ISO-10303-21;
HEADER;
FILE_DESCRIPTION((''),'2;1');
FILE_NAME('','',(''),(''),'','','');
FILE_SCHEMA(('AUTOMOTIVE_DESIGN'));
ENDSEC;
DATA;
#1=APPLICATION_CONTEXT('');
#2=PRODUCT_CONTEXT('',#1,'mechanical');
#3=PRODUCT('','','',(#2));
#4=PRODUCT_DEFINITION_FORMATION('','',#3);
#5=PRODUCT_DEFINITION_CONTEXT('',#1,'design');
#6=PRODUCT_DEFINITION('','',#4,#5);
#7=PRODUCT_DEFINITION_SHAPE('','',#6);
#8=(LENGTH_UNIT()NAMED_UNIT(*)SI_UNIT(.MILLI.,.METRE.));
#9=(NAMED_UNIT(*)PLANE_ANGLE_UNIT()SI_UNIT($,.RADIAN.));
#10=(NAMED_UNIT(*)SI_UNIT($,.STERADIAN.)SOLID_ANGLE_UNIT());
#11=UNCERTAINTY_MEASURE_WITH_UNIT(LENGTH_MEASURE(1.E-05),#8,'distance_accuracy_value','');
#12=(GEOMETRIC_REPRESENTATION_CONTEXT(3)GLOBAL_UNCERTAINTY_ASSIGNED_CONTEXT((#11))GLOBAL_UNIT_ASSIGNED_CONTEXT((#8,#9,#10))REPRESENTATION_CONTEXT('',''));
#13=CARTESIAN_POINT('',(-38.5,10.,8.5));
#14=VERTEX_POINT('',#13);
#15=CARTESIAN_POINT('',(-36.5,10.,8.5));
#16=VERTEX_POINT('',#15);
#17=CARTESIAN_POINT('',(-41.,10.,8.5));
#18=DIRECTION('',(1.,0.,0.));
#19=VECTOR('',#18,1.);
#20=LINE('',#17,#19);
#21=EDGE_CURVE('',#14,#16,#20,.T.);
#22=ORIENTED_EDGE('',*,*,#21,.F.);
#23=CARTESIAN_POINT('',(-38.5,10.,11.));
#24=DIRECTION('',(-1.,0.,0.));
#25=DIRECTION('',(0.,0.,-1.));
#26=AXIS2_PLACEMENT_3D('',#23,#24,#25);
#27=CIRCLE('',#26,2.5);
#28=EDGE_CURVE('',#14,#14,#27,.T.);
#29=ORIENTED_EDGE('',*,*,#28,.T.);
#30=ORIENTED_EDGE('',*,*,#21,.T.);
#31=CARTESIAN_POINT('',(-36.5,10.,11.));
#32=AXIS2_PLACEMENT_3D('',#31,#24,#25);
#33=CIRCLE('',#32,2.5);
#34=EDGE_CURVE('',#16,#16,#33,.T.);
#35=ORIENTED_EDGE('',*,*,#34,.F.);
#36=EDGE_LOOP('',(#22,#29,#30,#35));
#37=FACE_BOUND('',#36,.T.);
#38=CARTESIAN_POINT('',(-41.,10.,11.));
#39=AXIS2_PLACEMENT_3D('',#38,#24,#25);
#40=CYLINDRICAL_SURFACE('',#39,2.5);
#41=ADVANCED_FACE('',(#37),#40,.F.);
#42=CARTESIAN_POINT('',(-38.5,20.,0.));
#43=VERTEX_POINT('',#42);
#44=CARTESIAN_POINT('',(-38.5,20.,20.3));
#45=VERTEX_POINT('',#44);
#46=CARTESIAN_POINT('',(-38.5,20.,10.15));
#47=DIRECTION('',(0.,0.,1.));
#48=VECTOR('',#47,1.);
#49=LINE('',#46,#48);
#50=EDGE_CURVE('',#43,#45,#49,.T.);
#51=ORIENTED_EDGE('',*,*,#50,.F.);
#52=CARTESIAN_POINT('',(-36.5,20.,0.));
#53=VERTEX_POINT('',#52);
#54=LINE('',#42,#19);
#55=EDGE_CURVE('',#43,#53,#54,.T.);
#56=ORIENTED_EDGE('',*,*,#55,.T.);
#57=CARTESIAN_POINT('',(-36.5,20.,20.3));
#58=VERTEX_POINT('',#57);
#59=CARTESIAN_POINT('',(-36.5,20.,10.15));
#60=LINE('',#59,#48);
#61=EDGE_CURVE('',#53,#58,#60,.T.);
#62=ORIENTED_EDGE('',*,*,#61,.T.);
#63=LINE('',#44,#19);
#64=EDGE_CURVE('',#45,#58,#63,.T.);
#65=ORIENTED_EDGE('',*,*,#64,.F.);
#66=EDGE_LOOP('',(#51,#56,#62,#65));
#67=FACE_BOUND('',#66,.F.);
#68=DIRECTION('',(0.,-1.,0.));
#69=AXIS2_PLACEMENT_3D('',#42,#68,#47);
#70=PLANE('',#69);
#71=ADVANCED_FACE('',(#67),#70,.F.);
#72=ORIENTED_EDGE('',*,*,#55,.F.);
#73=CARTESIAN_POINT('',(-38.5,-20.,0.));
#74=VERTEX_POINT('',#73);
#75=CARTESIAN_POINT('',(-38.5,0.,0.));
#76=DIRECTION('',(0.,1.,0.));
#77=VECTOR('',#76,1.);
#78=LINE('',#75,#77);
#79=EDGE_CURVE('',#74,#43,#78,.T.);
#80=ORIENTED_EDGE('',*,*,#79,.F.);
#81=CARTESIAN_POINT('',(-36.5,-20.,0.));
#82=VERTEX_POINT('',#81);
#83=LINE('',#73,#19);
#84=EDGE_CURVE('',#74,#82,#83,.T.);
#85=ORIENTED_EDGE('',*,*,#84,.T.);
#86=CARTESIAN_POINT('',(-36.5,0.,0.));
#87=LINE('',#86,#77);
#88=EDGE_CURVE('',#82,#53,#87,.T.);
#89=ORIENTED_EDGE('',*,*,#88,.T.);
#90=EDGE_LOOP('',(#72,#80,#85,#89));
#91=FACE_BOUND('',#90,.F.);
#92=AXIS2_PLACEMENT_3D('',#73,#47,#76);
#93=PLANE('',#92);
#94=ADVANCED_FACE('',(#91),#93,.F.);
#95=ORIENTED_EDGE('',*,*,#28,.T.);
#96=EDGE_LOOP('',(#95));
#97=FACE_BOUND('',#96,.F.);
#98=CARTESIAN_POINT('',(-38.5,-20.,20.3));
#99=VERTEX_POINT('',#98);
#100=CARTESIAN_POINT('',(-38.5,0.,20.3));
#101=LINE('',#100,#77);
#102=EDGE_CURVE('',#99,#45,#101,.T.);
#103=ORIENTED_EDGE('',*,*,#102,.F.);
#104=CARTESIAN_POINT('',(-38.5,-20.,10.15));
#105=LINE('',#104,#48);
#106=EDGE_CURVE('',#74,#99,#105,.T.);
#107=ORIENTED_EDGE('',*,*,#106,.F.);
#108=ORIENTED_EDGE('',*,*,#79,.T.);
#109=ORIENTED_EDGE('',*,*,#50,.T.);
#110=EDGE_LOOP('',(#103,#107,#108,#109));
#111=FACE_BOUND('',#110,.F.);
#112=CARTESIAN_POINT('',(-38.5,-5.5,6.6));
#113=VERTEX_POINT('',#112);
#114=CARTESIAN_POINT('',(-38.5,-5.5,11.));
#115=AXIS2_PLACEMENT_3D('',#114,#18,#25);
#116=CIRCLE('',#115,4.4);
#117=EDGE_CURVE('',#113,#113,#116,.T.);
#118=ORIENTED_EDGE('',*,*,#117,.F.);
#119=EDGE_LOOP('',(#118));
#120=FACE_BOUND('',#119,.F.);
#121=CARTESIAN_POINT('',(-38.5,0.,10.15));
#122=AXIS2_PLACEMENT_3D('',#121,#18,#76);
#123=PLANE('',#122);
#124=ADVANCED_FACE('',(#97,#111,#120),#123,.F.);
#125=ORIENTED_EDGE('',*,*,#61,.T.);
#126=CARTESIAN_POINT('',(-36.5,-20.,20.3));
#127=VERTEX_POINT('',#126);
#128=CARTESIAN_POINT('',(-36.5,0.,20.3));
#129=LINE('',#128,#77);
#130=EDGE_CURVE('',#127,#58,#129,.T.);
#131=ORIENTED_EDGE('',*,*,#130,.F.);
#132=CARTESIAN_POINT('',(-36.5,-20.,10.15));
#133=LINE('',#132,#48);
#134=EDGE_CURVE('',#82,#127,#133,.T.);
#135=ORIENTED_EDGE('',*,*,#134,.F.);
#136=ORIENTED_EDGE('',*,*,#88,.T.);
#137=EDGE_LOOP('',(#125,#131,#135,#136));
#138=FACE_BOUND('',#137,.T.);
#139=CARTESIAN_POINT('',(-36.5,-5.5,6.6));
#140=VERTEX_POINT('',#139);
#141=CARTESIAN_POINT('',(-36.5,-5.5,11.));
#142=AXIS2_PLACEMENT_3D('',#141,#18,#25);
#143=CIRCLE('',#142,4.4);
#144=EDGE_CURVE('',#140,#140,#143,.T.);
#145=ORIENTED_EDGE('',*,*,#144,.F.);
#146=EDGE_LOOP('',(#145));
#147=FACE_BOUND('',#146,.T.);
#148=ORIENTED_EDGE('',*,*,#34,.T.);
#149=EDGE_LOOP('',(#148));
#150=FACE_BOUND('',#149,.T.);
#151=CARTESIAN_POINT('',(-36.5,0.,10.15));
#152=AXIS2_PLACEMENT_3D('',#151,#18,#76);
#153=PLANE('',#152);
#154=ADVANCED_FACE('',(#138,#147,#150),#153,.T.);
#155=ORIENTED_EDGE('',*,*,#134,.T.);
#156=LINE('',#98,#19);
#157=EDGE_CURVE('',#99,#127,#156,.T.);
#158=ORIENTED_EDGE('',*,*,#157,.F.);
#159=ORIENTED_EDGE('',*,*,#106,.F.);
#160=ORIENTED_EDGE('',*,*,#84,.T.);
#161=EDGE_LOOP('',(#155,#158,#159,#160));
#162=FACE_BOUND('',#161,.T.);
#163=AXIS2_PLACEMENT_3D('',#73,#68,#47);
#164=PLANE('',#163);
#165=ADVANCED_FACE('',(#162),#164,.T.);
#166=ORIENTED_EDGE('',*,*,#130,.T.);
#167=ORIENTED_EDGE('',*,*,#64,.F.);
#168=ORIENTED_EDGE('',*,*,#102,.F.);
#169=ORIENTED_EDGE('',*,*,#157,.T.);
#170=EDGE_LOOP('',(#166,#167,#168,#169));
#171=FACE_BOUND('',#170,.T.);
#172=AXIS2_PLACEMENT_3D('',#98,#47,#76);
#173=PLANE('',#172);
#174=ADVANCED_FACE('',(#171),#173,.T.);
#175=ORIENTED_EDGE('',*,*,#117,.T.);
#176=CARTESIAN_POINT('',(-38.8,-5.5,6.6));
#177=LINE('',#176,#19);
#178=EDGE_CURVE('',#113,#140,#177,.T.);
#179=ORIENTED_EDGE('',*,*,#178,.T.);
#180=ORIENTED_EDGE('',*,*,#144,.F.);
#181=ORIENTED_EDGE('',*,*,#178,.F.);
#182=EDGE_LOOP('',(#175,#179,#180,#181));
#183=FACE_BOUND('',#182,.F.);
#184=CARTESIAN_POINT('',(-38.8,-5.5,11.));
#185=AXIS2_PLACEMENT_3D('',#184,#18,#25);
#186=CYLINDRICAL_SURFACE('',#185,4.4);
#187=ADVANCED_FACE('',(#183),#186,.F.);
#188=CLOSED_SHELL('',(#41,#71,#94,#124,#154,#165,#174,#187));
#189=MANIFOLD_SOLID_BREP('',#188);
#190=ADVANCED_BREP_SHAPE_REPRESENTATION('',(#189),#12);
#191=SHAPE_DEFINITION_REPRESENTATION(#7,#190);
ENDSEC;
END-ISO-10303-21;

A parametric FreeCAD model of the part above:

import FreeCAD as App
import Part
import Sketcher
Q = App.Units.Quantity

doc = App.newDocument("Part")
body = doc.addObject("PartDesign::Body", "Body")

sketch1 = doc.addObject("Sketcher::SketchObject", "Sketch")
body.addObject(sketch1)
sketch1.AttachmentSupport = (doc.XZ_Plane, [""])
sketch1.MapMode = "FlatFace"
sketch1.addGeometry(Part.LineSegment(App.Vector(0, -4.4, 0), App.Vector(0, -5.3, 0)), False)
sketch1.addGeometry(Part.LineSegment(App.Vector(0, -5.3, 0), App.Vector(16, -5.3, 0)), False)
sketch1.addGeometry(Part.LineSegment(App.Vector(16, -5.3, 0), App.Vector(16, 0, 0)), False)
sketch1.addGeometry(Part.LineSegment(App.Vector(16, 0, 0), App.Vector(-5.6, 0, 0)), False)
sketch1.addGeometry(Part.LineSegment(App.Vector(-5.6, 0, 0), App.Vector(-5.6, -4.4, 0)), False)
sketch1.addGeometry(Part.LineSegment(App.Vector(-5.6, -4.4, 0), App.Vector(0, -4.4, 0)), False)
sketch1.addConstraint(Sketcher.Constraint("Coincident", 0, 2, 1, 1))
sketch1.addConstraint(Sketcher.Constraint("Coincident", 1, 2, 2, 1))
sketch1.addConstraint(Sketcher.Constraint("Coincident", 2, 2, 3, 1))
sketch1.addConstraint(Sketcher.Constraint("Coincident", 3, 2, 4, 1))
sketch1.addConstraint(Sketcher.Constraint("Coincident", 4, 2, 5, 1))
sketch1.addConstraint(Sketcher.Constraint("Coincident", 5, 2, 0, 1))
sketch1.addConstraint(Sketcher.Constraint("Vertical", 0))
sketch1.addConstraint(Sketcher.Constraint("Horizontal", 1))
sketch1.addConstraint(Sketcher.Constraint("Vertical", 2))
sketch1.addConstraint(Sketcher.Constraint("Horizontal", 3))
sketch1.addConstraint(Sketcher.Constraint("Vertical", 4))
sketch1.addConstraint(Sketcher.Constraint("Horizontal", 5))
sketch1.addConstraint(Sketcher.Constraint("PointOnObject", 0, 2, -2))
sketch1.addConstraint(Sketcher.Constraint("PointOnObject", 2, 2, -1))
sketch1.addConstraint(Sketcher.Constraint("DistanceX", 1, 1, 1, 2, Q("16 mm")))
sketch1.addConstraint(Sketcher.Constraint("DistanceX", 3, 2, 3, 1, Q("21.6 mm")))
sketch1.addConstraint(Sketcher.Constraint("DistanceY", 0, 2, 0, 1, Q("0.9 mm")))
sketch1.addConstraint(Sketcher.Constraint("DistanceY", 2, 1, 2, 2, Q("5.3 mm")))
revolution = doc.addObject("PartDesign::Revolution", "Revolution")
body.addObject(revolution)
revolution.Profile = sketch1
revolution.ReferenceAxis = (sketch1, ["H_Axis"])
revolution.Angle = 360
body2 = doc.addObject("PartDesign::Body", "Body001")
doc.recompute()

body.Placement = App.Placement(App.Vector(-36, -5.5, 11), App.Rotation(App.Vector(0, 0, 1), 0))
boolean = doc.addObject("PartDesign::Boolean", "Boolean")
body2.addObject(boolean)
boolean.Type = "Fuse"
boolean.addObjects([body])
body3 = doc.addObject("PartDesign::Body", "Body002")

sketch2 = doc.addObject("Sketcher::SketchObject", "Sketch001")
body3.addObject(sketch2)
sketch2.AttachmentSupport = (doc.getObject("YZ_Plane002"), [""])
sketch2.MapMode = "FlatFace"
sketch2.AttachmentOffset = App.Placement(App.Vector(0, 0, -41), App.Rotation())
sketch2.addGeometry(Part.Circle(App.Vector(10, 11, 0), App.Vector(0, 0, 1), 2.5), False)
sketch2.addConstraint(Sketcher.Constraint("Diameter", 0, Q("5 mm")))
sketch2.addConstraint(Sketcher.Constraint("DistanceX", -1, 1, 0, 3, Q("10 mm")))
sketch2.addConstraint(Sketcher.Constraint("DistanceY", -1, 1, 0, 3, Q("11 mm")))
pad1 = doc.addObject("PartDesign::Pad", "Pad")
body3.addObject(pad1)
pad1.Profile = sketch2
pad1.Length = 10
body4 = doc.addObject("PartDesign::Body", "Body003")

sketch3 = doc.addObject("Sketcher::SketchObject", "Sketch002")
body4.addObject(sketch3)
sketch3.AttachmentSupport = (doc.getObject("YZ_Plane003"), [""])
sketch3.MapMode = "FlatFace"
sketch3.AttachmentOffset = App.Placement(App.Vector(0, 0, 28.5), App.Rotation())
sketch3.addGeometry(Part.LineSegment(App.Vector(-20, 20, 0), App.Vector(-20, 0, 0)), False)
sketch3.addGeometry(Part.LineSegment(App.Vector(-20, 0, 0), App.Vector(20, 0, 0)), False)
sketch3.addGeometry(Part.LineSegment(App.Vector(20, 0, 0), App.Vector(20, 20, 0)), False)
sketch3.addGeometry(Part.LineSegment(App.Vector(20, 20, 0), App.Vector(-20, 20, 0)), False)
sketch3.addConstraint(Sketcher.Constraint("Coincident", 0, 2, 1, 1))
sketch3.addConstraint(Sketcher.Constraint("Coincident", 1, 2, 2, 1))
sketch3.addConstraint(Sketcher.Constraint("Coincident", 2, 2, 3, 1))
sketch3.addConstraint(Sketcher.Constraint("Coincident", 3, 2, 0, 1))
sketch3.addConstraint(Sketcher.Constraint("Vertical", 0))
sketch3.addConstraint(Sketcher.Constraint("Horizontal", 1))
sketch3.addConstraint(Sketcher.Constraint("Vertical", 2))
sketch3.addConstraint(Sketcher.Constraint("Horizontal", 3))
sketch3.addConstraint(Sketcher.Constraint("Symmetric", 0, 2, 1, 2, -1, 1))
sketch3.addConstraint(Sketcher.Constraint("DistanceX", 1, 1, 1, 2, Q("40 mm")))
sketch3.addConstraint(Sketcher.Constraint("DistanceY", 0, 2, 0, 1, Q("20.3 mm")))
pad2 = doc.addObject("PartDesign::Pad", "Pad001")
body4.addObject(pad2)
pad2.Profile = sketch3
pad2.Length = 2
body5 = doc.addObject("PartDesign::Body", "Body004")
doc.recompute()

body4.Placement = App.Placement(App.Vector(-67, 0, 0), App.Rotation(App.Vector(0, 0, 1), 0))
boolean2 = doc.addObject("PartDesign::Boolean", "Boolean001")
body5.addObject(boolean2)
boolean2.Type = "Fuse"
boolean2.addObjects([body4])
doc.recompute()

boolean3 = doc.addObject("PartDesign::Boolean", "Boolean002")
body5.addObject(boolean3)
boolean3.Type = "Cut"
boolean3.addObjects([body3])
doc.recompute()

boolean4 = doc.addObject("PartDesign::Boolean", "Boolean003")
body5.addObject(boolean4)
boolean4.Type = "Cut"
boolean4.addObjects([body2])

doc.recompute()
